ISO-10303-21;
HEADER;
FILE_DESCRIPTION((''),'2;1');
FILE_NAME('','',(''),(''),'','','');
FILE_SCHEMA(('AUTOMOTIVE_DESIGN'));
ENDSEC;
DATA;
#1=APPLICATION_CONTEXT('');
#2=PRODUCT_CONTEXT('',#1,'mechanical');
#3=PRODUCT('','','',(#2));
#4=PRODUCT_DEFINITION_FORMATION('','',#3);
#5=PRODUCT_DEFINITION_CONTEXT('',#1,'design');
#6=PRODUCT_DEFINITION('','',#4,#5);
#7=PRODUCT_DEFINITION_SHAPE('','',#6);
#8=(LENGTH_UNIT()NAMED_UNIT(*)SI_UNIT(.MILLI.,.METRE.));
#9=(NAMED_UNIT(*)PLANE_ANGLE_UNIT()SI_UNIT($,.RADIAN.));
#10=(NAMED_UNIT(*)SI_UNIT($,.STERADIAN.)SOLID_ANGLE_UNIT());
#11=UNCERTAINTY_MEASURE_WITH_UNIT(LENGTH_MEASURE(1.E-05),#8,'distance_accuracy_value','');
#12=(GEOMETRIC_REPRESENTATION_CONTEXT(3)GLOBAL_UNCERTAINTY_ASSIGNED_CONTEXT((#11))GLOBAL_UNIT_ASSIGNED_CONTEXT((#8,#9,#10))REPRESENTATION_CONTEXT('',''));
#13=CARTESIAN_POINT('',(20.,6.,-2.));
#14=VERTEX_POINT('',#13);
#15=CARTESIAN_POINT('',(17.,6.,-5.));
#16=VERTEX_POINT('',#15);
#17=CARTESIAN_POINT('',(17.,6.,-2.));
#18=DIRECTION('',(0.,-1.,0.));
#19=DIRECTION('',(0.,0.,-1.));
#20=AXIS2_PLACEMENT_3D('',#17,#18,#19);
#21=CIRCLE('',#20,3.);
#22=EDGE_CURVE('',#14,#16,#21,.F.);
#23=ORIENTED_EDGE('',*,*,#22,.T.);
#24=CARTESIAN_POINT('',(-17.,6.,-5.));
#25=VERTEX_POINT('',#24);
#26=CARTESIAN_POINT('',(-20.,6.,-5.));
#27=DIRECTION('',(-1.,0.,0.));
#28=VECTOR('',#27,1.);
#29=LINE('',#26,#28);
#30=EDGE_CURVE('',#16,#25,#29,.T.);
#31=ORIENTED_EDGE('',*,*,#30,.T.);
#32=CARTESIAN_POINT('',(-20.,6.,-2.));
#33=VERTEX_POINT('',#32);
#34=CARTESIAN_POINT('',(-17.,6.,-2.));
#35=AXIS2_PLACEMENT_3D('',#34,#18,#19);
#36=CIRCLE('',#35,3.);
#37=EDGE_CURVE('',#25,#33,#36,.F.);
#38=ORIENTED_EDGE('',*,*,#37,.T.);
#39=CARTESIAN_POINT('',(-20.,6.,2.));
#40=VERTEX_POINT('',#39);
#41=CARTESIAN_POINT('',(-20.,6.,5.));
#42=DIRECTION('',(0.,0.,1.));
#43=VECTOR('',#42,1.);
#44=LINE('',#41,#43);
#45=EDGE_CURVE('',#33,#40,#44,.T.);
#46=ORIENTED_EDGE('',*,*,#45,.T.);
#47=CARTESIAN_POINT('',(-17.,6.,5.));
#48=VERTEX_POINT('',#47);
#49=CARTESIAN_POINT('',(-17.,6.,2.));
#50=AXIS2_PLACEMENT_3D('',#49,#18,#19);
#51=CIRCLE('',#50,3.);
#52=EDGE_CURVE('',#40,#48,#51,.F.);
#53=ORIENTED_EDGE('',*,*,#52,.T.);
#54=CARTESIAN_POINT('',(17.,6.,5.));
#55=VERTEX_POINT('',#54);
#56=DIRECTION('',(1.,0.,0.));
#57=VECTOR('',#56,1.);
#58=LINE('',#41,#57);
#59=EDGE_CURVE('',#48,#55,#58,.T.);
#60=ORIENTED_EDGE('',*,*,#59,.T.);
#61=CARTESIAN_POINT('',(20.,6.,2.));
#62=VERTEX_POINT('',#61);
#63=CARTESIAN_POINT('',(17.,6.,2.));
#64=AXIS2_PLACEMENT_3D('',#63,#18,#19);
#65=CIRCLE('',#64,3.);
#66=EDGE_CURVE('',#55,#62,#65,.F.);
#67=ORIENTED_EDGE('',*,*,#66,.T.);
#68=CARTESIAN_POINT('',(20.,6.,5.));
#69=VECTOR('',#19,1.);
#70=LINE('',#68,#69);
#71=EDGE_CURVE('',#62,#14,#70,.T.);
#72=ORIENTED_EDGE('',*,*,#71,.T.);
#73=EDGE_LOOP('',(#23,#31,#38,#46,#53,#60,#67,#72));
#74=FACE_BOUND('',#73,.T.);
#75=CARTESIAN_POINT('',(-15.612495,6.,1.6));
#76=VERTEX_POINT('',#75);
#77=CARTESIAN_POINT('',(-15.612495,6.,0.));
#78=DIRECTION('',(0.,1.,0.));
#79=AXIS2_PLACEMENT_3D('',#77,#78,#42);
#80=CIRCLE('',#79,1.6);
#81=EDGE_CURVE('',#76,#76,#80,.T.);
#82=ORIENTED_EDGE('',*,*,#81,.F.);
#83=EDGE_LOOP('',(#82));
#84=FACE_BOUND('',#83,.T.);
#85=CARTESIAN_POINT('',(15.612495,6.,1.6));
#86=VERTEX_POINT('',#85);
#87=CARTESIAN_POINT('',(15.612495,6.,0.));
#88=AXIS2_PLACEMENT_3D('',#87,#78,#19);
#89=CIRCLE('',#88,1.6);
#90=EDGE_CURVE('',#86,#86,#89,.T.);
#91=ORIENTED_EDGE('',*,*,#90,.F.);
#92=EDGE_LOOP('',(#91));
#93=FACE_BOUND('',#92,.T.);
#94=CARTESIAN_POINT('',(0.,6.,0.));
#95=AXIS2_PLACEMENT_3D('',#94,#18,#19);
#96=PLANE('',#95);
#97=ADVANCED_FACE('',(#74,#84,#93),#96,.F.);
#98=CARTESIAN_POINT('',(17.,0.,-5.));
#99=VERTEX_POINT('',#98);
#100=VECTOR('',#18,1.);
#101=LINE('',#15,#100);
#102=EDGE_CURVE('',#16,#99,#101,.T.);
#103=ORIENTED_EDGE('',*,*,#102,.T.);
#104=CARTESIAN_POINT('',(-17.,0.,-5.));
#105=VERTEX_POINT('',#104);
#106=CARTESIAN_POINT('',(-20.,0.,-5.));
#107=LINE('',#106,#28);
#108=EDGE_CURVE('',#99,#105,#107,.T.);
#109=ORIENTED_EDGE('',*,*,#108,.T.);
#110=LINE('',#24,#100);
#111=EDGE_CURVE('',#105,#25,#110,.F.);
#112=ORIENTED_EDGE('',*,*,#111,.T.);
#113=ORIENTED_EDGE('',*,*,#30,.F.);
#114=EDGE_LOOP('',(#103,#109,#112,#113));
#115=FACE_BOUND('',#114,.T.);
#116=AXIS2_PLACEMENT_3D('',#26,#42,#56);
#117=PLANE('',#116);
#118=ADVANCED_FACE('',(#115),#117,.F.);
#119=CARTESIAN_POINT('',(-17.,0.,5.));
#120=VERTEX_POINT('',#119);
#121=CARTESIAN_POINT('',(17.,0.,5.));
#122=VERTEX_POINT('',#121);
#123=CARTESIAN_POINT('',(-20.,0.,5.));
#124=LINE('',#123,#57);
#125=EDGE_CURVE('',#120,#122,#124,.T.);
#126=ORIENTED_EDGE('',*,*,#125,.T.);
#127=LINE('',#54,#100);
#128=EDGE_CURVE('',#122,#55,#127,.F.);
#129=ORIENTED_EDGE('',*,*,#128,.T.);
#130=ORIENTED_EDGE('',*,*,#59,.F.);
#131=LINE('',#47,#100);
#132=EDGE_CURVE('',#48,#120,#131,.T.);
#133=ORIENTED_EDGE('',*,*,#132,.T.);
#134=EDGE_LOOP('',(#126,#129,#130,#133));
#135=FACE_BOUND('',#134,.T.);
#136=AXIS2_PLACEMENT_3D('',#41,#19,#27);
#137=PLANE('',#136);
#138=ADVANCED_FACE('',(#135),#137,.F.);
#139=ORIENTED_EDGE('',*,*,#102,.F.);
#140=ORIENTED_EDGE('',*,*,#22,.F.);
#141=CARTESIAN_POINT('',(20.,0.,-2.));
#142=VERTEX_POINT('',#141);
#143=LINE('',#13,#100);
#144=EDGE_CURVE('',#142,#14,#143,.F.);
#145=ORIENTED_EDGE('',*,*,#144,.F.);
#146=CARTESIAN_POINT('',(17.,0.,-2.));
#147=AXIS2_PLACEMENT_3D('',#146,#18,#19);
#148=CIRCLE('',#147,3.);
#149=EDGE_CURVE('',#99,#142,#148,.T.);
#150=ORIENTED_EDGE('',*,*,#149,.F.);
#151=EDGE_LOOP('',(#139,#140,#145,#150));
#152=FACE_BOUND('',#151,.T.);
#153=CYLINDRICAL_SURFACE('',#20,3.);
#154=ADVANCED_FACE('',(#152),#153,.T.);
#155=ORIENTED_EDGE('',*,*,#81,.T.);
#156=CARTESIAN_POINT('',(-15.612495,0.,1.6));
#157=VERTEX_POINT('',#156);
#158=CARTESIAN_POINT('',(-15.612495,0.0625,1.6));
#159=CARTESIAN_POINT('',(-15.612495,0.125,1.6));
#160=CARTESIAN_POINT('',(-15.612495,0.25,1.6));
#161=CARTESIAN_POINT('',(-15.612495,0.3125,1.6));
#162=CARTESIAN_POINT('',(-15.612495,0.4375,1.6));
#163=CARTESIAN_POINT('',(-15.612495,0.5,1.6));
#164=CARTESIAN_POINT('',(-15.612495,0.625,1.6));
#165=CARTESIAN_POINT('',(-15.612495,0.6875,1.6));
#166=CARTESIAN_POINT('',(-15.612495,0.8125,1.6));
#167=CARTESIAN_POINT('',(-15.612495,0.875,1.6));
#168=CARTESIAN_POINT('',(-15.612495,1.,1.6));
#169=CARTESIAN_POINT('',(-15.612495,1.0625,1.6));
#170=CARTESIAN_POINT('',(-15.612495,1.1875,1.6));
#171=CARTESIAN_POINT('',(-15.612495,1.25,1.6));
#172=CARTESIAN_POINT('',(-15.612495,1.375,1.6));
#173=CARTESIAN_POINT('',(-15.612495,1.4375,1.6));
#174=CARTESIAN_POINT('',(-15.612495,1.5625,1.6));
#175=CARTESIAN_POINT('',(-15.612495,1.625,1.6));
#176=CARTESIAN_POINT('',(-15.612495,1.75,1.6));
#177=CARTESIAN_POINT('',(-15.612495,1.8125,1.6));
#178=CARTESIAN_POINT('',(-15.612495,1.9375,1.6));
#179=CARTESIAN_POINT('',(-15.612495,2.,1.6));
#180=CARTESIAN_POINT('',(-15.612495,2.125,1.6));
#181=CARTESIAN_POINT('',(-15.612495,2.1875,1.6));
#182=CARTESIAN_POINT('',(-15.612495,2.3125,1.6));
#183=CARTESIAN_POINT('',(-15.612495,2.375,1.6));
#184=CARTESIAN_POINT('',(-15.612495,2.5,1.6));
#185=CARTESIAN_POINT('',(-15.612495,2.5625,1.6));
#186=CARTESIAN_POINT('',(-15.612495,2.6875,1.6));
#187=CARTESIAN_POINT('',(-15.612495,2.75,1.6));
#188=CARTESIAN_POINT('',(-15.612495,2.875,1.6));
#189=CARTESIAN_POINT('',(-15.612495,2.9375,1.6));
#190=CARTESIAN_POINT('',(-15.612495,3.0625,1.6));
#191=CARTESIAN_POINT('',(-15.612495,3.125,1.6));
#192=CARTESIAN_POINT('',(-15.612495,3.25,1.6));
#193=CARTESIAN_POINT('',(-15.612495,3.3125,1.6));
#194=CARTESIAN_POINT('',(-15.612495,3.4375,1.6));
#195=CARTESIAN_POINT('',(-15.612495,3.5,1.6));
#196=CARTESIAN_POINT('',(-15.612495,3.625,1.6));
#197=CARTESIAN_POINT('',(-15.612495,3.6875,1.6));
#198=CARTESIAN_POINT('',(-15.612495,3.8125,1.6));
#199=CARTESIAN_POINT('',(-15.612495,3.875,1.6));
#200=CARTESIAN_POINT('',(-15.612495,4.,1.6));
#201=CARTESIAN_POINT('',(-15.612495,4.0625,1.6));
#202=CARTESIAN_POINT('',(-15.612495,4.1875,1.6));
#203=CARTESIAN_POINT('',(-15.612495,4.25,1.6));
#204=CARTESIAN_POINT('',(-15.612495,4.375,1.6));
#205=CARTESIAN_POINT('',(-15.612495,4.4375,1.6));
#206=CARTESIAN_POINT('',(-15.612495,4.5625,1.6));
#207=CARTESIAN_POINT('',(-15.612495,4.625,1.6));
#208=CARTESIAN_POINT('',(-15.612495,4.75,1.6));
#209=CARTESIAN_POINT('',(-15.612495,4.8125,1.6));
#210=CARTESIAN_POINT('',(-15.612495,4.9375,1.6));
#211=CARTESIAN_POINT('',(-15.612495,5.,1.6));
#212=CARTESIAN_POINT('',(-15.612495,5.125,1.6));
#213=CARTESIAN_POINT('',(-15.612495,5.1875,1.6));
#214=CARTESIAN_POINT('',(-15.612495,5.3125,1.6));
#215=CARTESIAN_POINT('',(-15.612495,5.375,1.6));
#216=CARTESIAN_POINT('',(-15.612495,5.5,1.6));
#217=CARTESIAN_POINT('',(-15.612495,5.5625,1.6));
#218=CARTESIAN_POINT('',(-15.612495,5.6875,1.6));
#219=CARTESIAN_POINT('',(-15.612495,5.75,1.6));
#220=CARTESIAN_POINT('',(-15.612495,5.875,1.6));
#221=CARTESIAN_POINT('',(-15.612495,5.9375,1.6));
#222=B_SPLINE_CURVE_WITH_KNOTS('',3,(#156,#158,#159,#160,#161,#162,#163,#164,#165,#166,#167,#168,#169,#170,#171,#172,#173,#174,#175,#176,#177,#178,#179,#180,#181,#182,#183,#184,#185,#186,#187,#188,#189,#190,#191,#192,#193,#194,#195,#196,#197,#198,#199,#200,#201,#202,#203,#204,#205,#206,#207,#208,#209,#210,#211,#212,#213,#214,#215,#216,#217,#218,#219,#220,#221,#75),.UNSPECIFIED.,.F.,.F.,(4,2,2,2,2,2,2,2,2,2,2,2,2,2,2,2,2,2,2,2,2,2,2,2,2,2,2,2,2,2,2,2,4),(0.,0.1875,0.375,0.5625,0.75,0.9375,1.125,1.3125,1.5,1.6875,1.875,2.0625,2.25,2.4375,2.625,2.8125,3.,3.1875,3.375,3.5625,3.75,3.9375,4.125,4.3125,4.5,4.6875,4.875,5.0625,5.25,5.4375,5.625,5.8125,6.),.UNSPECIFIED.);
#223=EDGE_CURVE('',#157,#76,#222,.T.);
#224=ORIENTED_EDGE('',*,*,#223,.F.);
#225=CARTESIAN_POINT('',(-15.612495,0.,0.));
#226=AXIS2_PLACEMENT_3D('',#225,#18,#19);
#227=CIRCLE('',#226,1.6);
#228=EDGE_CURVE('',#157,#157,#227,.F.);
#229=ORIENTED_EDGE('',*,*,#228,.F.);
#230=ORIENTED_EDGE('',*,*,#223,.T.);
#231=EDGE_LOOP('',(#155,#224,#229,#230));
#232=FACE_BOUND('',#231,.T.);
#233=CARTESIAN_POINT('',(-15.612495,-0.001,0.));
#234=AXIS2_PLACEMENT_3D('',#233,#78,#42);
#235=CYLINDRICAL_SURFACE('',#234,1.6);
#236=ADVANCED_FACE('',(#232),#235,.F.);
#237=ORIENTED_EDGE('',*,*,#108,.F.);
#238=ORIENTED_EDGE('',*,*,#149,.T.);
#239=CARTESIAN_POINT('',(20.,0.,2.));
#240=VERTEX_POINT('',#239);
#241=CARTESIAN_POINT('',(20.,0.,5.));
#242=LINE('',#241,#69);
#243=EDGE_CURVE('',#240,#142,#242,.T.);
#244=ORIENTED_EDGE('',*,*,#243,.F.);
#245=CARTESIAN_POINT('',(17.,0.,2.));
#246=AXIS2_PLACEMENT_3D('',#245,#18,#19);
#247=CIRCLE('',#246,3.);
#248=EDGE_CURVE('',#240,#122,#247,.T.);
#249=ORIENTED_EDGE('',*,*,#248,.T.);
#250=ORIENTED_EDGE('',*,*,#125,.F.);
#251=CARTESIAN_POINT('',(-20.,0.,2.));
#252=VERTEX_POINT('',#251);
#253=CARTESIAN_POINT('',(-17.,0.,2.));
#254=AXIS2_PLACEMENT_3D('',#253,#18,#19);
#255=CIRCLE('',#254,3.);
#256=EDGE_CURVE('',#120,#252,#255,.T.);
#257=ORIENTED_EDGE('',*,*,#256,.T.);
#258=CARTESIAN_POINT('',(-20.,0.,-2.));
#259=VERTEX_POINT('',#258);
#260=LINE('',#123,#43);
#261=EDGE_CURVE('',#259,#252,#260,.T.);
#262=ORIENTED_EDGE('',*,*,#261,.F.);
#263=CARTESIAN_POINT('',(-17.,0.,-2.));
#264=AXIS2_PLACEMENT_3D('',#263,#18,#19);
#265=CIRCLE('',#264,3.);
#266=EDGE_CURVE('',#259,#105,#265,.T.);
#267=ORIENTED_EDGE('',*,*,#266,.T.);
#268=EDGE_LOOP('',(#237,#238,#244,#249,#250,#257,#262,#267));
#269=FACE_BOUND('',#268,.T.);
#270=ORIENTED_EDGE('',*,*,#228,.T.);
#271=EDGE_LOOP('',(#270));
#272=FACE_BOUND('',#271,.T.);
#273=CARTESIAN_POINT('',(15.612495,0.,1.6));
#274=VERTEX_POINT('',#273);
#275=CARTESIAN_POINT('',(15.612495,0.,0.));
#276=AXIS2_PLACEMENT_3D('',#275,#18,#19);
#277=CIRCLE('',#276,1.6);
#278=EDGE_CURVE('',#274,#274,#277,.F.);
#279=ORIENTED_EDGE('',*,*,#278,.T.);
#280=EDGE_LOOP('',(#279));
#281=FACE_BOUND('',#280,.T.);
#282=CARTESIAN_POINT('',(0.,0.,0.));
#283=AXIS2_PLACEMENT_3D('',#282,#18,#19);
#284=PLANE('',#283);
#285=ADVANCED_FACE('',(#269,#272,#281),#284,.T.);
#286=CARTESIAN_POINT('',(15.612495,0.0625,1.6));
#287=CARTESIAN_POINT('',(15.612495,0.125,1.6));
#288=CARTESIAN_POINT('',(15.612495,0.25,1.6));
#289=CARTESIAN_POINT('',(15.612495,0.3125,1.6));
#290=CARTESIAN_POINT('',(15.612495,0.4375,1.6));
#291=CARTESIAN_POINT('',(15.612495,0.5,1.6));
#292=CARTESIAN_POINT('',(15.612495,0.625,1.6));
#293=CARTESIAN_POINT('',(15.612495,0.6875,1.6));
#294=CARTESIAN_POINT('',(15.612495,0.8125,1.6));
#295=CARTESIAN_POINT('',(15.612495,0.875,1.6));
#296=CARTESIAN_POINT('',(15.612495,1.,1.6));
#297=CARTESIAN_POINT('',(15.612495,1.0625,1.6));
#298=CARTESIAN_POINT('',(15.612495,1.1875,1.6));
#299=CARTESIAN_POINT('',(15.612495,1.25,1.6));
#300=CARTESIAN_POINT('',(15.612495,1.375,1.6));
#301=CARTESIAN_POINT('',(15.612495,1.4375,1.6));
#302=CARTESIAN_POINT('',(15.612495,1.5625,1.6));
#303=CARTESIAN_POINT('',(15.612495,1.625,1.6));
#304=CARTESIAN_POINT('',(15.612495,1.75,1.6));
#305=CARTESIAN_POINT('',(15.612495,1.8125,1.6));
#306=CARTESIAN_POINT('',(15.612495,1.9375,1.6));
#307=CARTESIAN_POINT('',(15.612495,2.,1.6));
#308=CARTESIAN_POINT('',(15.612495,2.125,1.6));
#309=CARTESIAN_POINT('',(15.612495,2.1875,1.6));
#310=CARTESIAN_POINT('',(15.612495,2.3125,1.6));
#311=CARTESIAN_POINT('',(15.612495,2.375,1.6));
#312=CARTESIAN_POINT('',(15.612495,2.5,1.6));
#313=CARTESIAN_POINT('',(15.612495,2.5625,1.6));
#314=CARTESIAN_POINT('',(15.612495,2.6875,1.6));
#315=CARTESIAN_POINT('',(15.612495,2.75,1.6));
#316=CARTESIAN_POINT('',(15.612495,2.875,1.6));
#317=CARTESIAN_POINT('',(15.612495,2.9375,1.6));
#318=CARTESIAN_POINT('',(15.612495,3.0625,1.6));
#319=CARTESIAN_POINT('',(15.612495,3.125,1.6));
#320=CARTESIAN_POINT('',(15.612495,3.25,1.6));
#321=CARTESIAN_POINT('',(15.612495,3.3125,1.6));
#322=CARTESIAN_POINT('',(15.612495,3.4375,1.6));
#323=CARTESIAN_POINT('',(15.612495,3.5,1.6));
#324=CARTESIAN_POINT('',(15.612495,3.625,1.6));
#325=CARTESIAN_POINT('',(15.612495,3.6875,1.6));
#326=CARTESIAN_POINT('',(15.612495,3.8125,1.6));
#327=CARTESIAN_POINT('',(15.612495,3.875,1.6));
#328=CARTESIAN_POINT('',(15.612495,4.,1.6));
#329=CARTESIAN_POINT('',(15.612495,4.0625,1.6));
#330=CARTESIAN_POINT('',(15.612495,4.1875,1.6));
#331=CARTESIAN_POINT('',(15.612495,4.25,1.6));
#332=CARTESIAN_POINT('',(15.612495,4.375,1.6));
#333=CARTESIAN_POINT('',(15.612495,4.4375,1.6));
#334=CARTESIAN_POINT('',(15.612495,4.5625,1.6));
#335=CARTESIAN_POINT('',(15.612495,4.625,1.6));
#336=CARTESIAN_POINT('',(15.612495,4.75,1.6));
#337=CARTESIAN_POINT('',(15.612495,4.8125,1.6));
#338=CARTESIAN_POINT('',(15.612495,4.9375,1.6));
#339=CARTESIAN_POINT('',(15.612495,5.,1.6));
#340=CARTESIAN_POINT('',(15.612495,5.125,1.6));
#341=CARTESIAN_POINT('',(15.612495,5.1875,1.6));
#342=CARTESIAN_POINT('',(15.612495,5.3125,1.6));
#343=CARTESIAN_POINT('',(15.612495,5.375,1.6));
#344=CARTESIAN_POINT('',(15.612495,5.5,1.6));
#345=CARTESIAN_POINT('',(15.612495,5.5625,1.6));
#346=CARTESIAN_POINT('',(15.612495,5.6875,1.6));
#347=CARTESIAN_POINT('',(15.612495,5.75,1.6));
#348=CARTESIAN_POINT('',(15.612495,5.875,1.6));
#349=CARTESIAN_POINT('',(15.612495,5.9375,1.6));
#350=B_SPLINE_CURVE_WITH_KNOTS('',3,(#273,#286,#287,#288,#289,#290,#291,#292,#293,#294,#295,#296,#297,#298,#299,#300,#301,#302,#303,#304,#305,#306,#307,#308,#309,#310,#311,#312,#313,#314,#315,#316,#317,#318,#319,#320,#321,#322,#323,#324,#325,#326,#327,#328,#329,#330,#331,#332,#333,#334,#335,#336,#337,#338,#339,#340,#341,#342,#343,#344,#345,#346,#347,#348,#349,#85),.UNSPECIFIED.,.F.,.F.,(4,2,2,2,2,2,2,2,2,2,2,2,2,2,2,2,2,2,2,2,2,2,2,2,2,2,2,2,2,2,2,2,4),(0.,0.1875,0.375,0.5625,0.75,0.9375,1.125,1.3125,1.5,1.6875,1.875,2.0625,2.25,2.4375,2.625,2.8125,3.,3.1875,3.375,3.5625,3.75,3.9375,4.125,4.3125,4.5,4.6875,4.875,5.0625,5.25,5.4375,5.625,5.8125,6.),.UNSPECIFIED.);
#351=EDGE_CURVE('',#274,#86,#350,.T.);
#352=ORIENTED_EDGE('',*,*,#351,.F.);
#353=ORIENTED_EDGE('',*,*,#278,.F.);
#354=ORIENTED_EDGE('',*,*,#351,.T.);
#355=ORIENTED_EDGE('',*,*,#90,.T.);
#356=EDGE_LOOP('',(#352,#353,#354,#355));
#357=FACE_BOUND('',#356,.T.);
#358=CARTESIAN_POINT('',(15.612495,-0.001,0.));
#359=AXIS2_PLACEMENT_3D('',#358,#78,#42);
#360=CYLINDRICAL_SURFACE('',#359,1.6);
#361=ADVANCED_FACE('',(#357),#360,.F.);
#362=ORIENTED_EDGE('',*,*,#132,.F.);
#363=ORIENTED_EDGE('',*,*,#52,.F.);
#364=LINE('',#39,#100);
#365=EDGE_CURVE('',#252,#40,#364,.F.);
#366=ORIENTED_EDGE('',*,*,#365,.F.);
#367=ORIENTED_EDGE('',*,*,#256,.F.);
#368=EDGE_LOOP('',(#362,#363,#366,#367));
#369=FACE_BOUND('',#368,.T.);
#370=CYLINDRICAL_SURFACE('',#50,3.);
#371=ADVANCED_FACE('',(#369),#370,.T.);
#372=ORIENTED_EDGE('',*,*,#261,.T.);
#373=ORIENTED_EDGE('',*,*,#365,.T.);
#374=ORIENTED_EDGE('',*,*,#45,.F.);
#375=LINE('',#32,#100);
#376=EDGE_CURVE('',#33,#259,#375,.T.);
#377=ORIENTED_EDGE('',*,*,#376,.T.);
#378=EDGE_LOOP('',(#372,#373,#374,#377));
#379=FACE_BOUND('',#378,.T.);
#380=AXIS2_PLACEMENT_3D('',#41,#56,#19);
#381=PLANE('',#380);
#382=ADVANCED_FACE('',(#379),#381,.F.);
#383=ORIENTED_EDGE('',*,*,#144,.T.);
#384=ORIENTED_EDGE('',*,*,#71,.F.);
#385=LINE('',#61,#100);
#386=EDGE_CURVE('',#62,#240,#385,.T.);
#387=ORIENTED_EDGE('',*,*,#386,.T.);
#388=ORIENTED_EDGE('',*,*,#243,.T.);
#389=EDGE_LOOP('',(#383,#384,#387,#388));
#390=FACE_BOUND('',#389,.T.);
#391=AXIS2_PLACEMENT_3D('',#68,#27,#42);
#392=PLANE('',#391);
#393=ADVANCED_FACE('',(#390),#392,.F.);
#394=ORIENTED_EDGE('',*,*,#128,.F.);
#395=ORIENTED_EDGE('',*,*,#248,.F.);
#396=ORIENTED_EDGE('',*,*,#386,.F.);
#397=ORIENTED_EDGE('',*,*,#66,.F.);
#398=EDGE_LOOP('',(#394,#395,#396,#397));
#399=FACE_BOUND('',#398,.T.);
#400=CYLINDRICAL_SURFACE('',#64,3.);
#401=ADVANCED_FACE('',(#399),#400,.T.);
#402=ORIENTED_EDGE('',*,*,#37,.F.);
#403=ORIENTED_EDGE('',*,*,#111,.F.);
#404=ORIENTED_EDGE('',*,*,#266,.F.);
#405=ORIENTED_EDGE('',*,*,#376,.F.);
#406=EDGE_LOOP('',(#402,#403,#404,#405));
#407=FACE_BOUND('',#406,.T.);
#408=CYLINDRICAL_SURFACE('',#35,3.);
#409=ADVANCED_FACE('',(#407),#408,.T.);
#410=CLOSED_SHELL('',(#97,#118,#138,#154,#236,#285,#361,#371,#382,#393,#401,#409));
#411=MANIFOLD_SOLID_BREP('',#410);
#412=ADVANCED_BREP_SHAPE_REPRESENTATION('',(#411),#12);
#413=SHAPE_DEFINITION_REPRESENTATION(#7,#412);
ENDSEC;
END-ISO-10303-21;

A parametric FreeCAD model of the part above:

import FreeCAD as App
import Part
import Sketcher
Q = App.Units.Quantity


def edges_at(feature, points):
    """Names of the edges that pass closest to the given points."""
    edges = feature.Shape.Edges
    near = lambda p: min(range(len(edges)), key=lambda i: edges[i].distToShape(Part.Vertex(*p))[0])
    return sorted({f"Edge{near(p) + 1}" for p in points})

doc = App.newDocument("Part")
body = doc.addObject("PartDesign::Body", "Body")

sketch1 = body.newObject("Sketcher::SketchObject", "Sketch")
sketch1.AttachmentSupport = (doc.getObject("XZ_Plane"), [""])
sketch1.MapMode = "FlatFace"
sketch1.addGeometry(Part.LineSegment(App.Vector(-20, -5, 0), App.Vector(-20, 5, 0)), False)
sketch1.addGeometry(Part.LineSegment(App.Vector(-20, 5, 0), App.Vector(20, 5, 0)), False)
sketch1.addGeometry(Part.LineSegment(App.Vector(20, 5, 0), App.Vector(20, -5, 0)), False)
sketch1.addGeometry(Part.LineSegment(App.Vector(20, -5, 0), App.Vector(-20, -5, 0)), False)
sketch1.addConstraint(Sketcher.Constraint("Coincident", 0, 2, 1, 1))
sketch1.addConstraint(Sketcher.Constraint("Coincident", 1, 2, 2, 1))
sketch1.addConstraint(Sketcher.Constraint("Coincident", 2, 2, 3, 1))
sketch1.addConstraint(Sketcher.Constraint("Coincident", 3, 2, 0, 1))
sketch1.addConstraint(Sketcher.Constraint("Vertical", 0))
sketch1.addConstraint(Sketcher.Constraint("Horizontal", 1))
sketch1.addConstraint(Sketcher.Constraint("Vertical", 2))
sketch1.addConstraint(Sketcher.Constraint("Horizontal", 3))
sketch1.addConstraint(Sketcher.Constraint("Symmetric", 0, 2, 2, 2, -1, 1))
sketch1.addConstraint(Sketcher.Constraint("DistanceX", 1, 1, 1, 2, Q("40 mm")))
sketch1.addConstraint(Sketcher.Constraint("DistanceY", 0, 1, 0, 2, Q("10 mm")))
pad1 = body.newObject("PartDesign::Pad", "Pad")
pad1.Profile = sketch1
pad1.Length = 6
pad1.Reversed = True

sketch2 = body.newObject("Sketcher::SketchObject", "Sketch001")
sketch2.AttachmentSupport = (doc.getObject("XZ_Plane"), [""])
sketch2.MapMode = "FlatFace"
sketch2.AttachmentOffset = App.Placement(App.Vector(0, 0, -6), App.Rotation())
sketch2.addGeometry(Part.Circle(App.Vector(-15.6, 0, 0), App.Vector(0, 0, 1), 1.6), False)
sketch2.addConstraint(Sketcher.Constraint("PointOnObject", 0, 3, -1))
sketch2.addConstraint(Sketcher.Constraint("Diameter", 0, Q("3.2 mm")))
sketch2.addConstraint(Sketcher.Constraint("DistanceX", 0, 3, -1, 1, Q("15.612495 mm")))
pocket1 = body.newObject("PartDesign::Pocket", "Pocket")
pocket1.Profile = sketch2
pocket1.Type = "UpToFirst"
pocket1.Reversed = True

sketch3 = body.newObject("Sketcher::SketchObject", "Sketch002")
sketch3.AttachmentSupport = (doc.getObject("XZ_Plane"), [""])
sketch3.MapMode = "FlatFace"
sketch3.AttachmentOffset = App.Placement(App.Vector(0, 0, -6), App.Rotation())
sketch3.addGeometry(Part.Circle(App.Vector(15.6, 0, 0), App.Vector(0, 0, 1), 1.6), False)
sketch3.addConstraint(Sketcher.Constraint("PointOnObject", 0, 3, -1))
sketch3.addConstraint(Sketcher.Constraint("Diameter", 0, Q("3.2 mm")))
sketch3.addConstraint(Sketcher.Constraint("DistanceX", -1, 1, 0, 3, Q("15.612495 mm")))
pocket2 = body.newObject("PartDesign::Pocket", "Pocket001")
pocket2.Profile = sketch3
pocket2.Type = "UpToFirst"
pocket2.Reversed = True
doc.recompute()

fillet = body.newObject("PartDesign::Fillet", "Fillet")
fillet.Base = (pocket2, edges_at(pocket2, [
    (20, 3, 5),
    (-20, 3, 5),
    (-20, 3, -5),
    (20, 3, -5),
]))
fillet.Radius = 3

doc.recompute()
